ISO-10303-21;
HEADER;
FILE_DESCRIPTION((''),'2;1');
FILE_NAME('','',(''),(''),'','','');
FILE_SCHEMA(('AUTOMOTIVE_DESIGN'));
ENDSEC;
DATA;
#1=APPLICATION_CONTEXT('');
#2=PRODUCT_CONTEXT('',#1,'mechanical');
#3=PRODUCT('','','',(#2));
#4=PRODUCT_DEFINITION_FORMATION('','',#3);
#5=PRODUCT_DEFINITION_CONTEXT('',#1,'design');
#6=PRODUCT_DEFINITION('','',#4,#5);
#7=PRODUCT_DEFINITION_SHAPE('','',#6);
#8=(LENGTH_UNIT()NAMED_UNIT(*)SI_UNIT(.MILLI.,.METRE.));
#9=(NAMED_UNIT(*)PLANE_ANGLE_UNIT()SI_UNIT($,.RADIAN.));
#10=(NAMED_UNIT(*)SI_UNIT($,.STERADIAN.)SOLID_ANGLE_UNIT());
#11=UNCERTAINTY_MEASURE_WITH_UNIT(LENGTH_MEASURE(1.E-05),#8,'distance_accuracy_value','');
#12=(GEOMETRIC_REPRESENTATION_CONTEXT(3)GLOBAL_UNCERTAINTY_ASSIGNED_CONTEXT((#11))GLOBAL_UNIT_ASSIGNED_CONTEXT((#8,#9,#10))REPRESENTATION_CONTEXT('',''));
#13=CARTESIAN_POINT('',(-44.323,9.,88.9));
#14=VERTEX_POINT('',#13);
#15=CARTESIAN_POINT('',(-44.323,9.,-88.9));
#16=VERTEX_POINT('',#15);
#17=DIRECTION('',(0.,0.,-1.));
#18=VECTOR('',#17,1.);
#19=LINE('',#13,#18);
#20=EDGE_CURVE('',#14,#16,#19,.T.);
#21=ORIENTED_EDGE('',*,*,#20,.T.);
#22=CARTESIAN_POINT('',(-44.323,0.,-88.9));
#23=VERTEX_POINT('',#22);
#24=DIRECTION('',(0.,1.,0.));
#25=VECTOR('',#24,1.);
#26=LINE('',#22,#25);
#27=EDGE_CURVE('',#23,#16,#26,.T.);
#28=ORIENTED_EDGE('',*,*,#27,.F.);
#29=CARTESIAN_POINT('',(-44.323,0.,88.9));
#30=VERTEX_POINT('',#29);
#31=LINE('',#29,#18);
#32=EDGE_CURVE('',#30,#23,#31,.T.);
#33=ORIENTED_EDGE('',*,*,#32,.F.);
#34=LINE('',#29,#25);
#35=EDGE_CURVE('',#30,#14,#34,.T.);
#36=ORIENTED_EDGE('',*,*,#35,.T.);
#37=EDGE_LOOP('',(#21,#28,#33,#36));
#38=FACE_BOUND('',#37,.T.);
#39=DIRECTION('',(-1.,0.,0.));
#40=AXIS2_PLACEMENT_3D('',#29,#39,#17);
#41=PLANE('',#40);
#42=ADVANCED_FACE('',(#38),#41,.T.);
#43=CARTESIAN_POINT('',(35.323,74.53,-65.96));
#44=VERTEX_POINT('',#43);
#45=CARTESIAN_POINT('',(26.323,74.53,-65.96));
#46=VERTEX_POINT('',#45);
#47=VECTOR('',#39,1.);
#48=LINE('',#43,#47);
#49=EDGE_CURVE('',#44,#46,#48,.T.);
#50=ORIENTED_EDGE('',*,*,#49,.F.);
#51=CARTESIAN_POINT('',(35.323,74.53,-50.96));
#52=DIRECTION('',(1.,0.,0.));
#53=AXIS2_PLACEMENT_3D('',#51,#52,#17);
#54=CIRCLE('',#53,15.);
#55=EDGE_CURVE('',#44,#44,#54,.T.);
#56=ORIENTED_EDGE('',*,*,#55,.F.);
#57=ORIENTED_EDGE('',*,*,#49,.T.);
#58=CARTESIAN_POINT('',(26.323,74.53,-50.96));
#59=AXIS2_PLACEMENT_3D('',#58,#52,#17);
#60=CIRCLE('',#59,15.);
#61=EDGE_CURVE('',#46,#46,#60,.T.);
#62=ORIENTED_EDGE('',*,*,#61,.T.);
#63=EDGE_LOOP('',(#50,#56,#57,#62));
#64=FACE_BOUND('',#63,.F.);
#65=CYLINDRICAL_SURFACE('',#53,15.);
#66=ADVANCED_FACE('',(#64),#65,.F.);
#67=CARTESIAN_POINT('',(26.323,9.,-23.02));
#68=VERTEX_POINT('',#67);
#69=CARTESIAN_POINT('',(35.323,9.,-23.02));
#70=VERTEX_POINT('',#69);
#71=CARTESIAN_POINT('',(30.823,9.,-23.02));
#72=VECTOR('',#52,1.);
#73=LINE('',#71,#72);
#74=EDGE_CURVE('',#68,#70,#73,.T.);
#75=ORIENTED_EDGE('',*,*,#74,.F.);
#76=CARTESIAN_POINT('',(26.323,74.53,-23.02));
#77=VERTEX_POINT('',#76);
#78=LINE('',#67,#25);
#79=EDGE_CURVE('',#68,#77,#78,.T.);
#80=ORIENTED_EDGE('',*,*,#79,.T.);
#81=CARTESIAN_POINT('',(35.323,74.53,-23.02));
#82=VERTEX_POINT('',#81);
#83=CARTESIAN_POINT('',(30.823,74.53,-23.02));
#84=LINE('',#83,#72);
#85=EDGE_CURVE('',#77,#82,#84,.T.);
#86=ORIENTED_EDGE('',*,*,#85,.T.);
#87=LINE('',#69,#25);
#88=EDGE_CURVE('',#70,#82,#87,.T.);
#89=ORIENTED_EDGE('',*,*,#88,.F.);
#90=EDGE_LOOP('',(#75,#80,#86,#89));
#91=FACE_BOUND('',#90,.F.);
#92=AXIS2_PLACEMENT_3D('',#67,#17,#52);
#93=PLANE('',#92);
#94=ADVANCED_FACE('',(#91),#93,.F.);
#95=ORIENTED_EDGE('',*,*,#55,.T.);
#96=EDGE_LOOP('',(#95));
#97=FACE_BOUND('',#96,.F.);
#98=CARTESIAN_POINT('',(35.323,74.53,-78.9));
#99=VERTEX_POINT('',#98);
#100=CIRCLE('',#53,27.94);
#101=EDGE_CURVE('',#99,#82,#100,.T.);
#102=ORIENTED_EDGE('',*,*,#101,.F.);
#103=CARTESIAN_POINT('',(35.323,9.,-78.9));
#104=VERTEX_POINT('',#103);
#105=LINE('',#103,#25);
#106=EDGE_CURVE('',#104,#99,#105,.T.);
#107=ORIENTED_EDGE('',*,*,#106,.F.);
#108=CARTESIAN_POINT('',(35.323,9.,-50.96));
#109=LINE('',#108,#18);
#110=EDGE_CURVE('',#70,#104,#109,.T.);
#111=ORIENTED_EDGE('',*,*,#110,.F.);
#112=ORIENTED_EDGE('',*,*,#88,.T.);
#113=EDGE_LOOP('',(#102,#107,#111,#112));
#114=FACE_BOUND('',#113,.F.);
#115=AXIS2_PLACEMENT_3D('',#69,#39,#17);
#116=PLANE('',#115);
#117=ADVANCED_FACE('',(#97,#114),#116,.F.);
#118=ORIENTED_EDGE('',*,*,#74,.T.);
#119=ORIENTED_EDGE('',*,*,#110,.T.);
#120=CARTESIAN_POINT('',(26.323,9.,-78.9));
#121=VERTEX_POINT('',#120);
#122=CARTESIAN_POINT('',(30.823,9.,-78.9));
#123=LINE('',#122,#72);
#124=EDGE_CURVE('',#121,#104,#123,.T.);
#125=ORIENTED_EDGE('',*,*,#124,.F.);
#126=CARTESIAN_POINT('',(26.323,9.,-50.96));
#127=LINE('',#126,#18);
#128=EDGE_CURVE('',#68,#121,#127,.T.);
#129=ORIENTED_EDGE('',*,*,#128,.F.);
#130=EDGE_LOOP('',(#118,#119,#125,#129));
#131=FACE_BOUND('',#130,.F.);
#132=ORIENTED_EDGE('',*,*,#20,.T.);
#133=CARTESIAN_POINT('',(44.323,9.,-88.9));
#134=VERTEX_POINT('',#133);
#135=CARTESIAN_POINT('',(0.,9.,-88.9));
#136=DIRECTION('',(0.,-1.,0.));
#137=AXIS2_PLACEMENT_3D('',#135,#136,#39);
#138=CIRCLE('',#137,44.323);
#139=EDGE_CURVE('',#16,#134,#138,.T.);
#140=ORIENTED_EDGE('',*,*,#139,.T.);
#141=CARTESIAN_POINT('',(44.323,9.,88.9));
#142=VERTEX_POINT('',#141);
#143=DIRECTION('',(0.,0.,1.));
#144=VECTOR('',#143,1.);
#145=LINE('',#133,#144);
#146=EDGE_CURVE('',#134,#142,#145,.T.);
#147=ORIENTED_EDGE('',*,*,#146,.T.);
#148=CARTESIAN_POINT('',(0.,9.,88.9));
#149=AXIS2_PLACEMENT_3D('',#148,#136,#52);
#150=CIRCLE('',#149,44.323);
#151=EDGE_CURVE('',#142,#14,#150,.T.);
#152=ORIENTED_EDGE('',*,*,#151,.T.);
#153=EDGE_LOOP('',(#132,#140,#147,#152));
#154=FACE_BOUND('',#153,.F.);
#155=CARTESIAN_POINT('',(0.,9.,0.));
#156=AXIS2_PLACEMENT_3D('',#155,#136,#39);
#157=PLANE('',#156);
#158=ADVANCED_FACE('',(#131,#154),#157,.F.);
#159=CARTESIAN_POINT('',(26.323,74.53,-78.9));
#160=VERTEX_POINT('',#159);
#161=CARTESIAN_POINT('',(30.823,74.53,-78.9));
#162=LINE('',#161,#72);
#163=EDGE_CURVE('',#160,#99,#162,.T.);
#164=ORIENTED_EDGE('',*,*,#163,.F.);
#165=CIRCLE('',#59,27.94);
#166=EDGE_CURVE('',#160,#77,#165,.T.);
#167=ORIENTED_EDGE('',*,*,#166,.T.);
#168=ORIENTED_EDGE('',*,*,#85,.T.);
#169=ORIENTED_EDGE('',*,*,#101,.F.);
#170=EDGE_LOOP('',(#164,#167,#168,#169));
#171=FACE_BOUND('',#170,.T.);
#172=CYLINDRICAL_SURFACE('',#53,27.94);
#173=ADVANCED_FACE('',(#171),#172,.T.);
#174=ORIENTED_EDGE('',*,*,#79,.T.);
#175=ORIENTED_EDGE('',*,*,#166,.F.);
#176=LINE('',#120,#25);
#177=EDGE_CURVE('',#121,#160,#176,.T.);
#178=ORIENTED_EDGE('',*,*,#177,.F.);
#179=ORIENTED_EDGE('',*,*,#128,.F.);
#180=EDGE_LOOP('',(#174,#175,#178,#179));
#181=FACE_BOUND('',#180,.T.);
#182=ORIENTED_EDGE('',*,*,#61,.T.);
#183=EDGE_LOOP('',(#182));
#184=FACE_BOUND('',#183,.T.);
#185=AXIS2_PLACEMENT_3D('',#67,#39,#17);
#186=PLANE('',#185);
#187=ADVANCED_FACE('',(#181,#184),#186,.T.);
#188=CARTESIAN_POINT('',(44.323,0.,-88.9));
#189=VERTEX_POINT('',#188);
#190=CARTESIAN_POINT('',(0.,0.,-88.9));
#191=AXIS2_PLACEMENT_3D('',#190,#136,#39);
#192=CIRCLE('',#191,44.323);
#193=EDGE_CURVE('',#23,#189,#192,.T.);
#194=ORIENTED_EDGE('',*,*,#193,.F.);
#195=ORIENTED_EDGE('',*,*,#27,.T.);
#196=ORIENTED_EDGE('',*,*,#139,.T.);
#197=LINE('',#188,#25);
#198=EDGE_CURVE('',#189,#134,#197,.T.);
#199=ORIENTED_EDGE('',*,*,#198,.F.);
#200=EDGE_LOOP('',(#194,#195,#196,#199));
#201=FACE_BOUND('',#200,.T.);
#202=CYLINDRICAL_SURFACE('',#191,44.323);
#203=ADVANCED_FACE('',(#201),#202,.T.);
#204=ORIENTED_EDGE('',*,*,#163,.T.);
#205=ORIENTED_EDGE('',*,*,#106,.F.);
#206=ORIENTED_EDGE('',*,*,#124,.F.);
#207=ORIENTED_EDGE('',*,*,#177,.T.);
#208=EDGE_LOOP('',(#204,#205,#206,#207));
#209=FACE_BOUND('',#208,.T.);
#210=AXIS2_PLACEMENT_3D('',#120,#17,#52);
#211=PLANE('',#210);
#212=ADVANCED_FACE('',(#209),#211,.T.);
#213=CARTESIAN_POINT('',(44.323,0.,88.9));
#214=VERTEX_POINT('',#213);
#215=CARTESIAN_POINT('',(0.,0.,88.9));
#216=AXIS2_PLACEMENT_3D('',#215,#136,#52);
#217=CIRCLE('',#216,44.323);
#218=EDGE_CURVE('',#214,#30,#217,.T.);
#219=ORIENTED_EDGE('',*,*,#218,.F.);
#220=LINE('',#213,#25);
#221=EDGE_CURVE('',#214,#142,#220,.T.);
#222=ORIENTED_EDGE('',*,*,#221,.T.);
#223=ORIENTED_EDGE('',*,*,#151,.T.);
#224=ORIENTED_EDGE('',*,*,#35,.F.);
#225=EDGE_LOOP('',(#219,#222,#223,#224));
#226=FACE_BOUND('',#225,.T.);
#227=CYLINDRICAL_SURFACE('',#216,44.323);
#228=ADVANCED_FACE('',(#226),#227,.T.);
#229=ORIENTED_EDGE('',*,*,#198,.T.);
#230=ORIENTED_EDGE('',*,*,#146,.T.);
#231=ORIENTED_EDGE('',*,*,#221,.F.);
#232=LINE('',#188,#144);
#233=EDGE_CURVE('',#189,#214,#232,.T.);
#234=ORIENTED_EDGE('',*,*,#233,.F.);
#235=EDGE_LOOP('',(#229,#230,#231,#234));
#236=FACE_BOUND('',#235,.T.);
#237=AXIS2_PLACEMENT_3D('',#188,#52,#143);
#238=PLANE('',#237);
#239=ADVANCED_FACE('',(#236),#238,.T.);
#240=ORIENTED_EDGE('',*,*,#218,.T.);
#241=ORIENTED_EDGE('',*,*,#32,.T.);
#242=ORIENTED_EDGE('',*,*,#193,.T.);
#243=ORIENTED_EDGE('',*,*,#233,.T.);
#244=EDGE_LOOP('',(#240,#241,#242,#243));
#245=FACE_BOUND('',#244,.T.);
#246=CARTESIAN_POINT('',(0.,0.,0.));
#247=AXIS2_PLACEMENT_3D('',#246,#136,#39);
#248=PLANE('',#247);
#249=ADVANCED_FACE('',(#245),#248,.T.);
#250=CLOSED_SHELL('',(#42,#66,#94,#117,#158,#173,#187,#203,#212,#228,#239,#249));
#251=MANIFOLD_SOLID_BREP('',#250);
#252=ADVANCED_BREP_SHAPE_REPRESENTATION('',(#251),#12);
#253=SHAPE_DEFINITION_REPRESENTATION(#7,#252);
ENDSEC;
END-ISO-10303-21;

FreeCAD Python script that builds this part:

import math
import FreeCAD as App
import Part
import Sketcher
from FreeCAD import Vector
Q = App.Units.Quantity

doc = App.newDocument("Part")
body = doc.addObject("PartDesign::Body", "Body")

# Sketch on XZ plane
sketch1 = doc.addObject("Sketcher::SketchObject", "Sketch")
body.addObject(sketch1)
sketch1.AttachmentSupport = (doc.XZ_Plane, [""])
sketch1.MapMode = "FlatFace"
sketch1.addGeometry(Part.LineSegment(Vector(44.323, 88.9, 0), Vector(44.323, -88.9, 0)), False)
sketch1.addGeometry(Part.ArcOfCircle(Part.Circle(Vector(0, -88.9, 0), Vector(0, 0, 1), 44.323), math.radians(180), math.radians(360)), False)
sketch1.addGeometry(Part.LineSegment(Vector(-44.323, -88.9, 0), Vector(-44.323, 88.9, 0)), False)
sketch1.addGeometry(Part.ArcOfCircle(Part.Circle(Vector(0, 88.9, 0), Vector(0, 0, 1), 44.323), math.radians(0), math.radians(180)), False)
sketch1.addConstraint(Sketcher.Constraint("Tangent", 0, 2, 1, 2))
sketch1.addConstraint(Sketcher.Constraint("Tangent", 1, 1, 2, 1))
sketch1.addConstraint(Sketcher.Constraint("Tangent", 2, 2, 3, 2))
sketch1.addConstraint(Sketcher.Constraint("Tangent", 3, 1, 0, 1))
sketch1.addConstraint(Sketcher.Constraint("Vertical", 0))
sketch1.addConstraint(Sketcher.Constraint("Vertical", 2))
sketch1.addConstraint(Sketcher.Constraint("Symmetric", 1, 3, 3, 3, -1, 1))
sketch1.addConstraint(Sketcher.Constraint("DistanceY", 0, 2, 0, 1, Q("7 in")))
sketch1.addConstraint(Sketcher.Constraint("Radius", 1, Q("1.745 in")))
pad1 = doc.addObject("PartDesign::Pad", "Pad")
body.addObject(pad1)
pad1.Profile = sketch1
pad1.Length = 9
pad1.Reversed = True

# Sketch on XZ plane
sketch2 = doc.addObject("Sketcher::SketchObject", "Sketch001")
body.addObject(sketch2)
sketch2.AttachmentSupport = (doc.XZ_Plane, [""])
sketch2.MapMode = "FlatFace"
sketch2.AttachmentOffset = App.Placement(Vector(0, 0, -9), App.Rotation())
sketch2.addGeometry(Part.LineSegment(Vector(26.323, -78.9, 0), Vector(26.323, -23.02, 0)), False)
sketch2.addGeometry(Part.LineSegment(Vector(26.323, -23.02, 0), Vector(35.323, -23.02, 0)), False)
sketch2.addGeometry(Part.LineSegment(Vector(35.323, -23.02, 0), Vector(35.323, -78.9, 0)), False)
sketch2.addGeometry(Part.LineSegment(Vector(35.323, -78.9, 0), Vector(26.323, -78.9, 0)), False)
sketch2.addConstraint(Sketcher.Constraint("Coincident", 0, 2, 1, 1))
sketch2.addConstraint(Sketcher.Constraint("Coincident", 1, 2, 2, 1))
sketch2.addConstraint(Sketcher.Constraint("Coincident", 2, 2, 3, 1))
sketch2.addConstraint(Sketcher.Constraint("Coincident", 3, 2, 0, 1))
sketch2.addConstraint(Sketcher.Constraint("Vertical", 0))
sketch2.addConstraint(Sketcher.Constraint("Horizontal", 1))
sketch2.addConstraint(Sketcher.Constraint("Vertical", 2))
sketch2.addConstraint(Sketcher.Constraint("Horizontal", 3))
sketch2.addConstraint(Sketcher.Constraint("DistanceY", 0, 1, 0, 2, Q("2.2 in")))
sketch2.addConstraint(Sketcher.Constraint("DistanceX", 1, 1, 1, 2, 9.0))
sketch2.addConstraint(Sketcher.Constraint("DistanceX", -1, 1, 0, 2, 26.323))
sketch2.addConstraint(Sketcher.Constraint("DistanceY", 0, 2, -1, 1, 23.02))
pad2 = doc.addObject("PartDesign::Pad", "Pad001")
body.addObject(pad2)
pad2.Profile = sketch2
pad2.Length = 65.53
pad2.Reversed = True

# Sketch on YZ plane
sketch3 = doc.addObject("Sketcher::SketchObject", "Sketch002")
body.addObject(sketch3)
sketch3.AttachmentSupport = (doc.YZ_Plane, [""])
sketch3.MapMode = "FlatFace"
sketch3.AttachmentOffset = App.Placement(Vector(0, 0, 35.323), App.Rotation())
sketch3.addGeometry(Part.Circle(Vector(74.53, -50.96, 0), Vector(0, 0, 1), 27.94), False)
sketch3.addConstraint(Sketcher.Constraint("Diameter", 0, Q("2.2 in")))
sketch3.addConstraint(Sketcher.Constraint("DistanceX", -1, 1, 0, 3, 74.53))
sketch3.addConstraint(Sketcher.Constraint("DistanceY", 0, 3, -1, 1, 50.96))
pad3 = doc.addObject("PartDesign::Pad", "Pad002")
body.addObject(pad3)
pad3.Profile = sketch3
pad3.Length = 9
pad3.Reversed = True

# Sketch on YZ plane
sketch4 = doc.addObject("Sketcher::SketchObject", "Sketch003")
body.addObject(sketch4)
sketch4.AttachmentSupport = (doc.YZ_Plane, [""])
sketch4.MapMode = "FlatFace"
sketch4.AttachmentOffset = App.Placement(Vector(0, 0, 35.323), App.Rotation())
sketch4.addGeometry(Part.Circle(Vector(74.53, -50.96, 0), Vector(0, 0, 1), 15), False)
sketch4.addConstraint(Sketcher.Constraint("Diameter", 0, 30.0))
sketch4.addConstraint(Sketcher.Constraint("DistanceX", -1, 1, 0, 3, 74.53))
sketch4.addConstraint(Sketcher.Constraint("DistanceY", 0, 3, -1, 1, 50.96))
pocket1 = doc.addObject("PartDesign::Pocket", "Pocket")
body.addObject(pocket1)
pocket1.Profile = sketch4
pocket1.Type = "ThroughAll"

doc.recompute()
